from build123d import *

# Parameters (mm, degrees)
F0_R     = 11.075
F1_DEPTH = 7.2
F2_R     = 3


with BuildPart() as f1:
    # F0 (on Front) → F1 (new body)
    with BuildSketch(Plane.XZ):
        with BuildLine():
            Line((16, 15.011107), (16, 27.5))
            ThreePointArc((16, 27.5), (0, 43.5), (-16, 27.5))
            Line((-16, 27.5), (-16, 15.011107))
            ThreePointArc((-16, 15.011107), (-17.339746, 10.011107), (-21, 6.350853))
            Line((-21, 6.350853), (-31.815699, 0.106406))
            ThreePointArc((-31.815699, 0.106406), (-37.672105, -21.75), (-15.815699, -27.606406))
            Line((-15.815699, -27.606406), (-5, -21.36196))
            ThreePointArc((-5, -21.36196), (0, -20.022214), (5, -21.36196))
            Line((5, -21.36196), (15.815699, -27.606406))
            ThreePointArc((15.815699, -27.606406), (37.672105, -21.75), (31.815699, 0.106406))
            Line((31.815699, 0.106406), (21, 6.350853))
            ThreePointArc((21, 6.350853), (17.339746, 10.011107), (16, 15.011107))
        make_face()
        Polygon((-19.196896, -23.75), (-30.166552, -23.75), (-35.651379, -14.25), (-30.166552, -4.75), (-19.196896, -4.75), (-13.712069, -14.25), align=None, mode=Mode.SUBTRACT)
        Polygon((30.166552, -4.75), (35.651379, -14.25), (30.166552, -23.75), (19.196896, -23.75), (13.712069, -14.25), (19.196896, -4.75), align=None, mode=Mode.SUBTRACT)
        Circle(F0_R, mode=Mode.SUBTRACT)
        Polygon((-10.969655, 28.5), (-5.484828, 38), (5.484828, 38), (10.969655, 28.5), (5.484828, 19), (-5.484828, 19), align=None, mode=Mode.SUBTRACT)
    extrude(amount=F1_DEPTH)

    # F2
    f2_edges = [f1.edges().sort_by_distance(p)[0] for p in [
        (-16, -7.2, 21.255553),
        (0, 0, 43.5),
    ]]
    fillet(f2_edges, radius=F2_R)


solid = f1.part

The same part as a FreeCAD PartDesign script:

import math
import FreeCAD as App
import Part
import Sketcher
from FreeCAD import Vector
Q = App.Units.Quantity


def edges_at(feature, points):
    """Names of the edges that pass closest to the given points."""
    edges = feature.Shape.Edges
    near = lambda p: min(range(len(edges)), key=lambda i: edges[i].distToShape(Part.Vertex(*p))[0])
    return sorted({f"Edge{near(p) + 1}" for p in points})

doc = App.newDocument("Part")
body = doc.addObject("PartDesign::Body", "Body")

# Sketch on XZ plane
sketch1 = body.newObject("Sketcher::SketchObject", "Sketch")
sketch1.AttachmentSupport = (doc.getObject("XZ_Plane"), [""])
sketch1.MapMode = "FlatFace"
sketch1.addGeometry([
    Part.LineSegment(Vector(16, 15, 0), Vector(16, 28, 0)),  # 0
    Part.ArcOfCircle(Part.Circle(Vector(0, 28, 0), Vector(0, 0, 1), 16), math.radians(0), math.radians(180)),  # 1
    Part.LineSegment(Vector(-16, 28, 0), Vector(-16, 15, 0)),  # 2
    Part.ArcOfCircle(Part.Circle(Vector(-26, 15, 0), Vector(0, 0, 1), 10), math.radians(-60), math.radians(0)),  # 3
    Part.LineSegment(Vector(-21, 6, 0), Vector(-32, 0, 0)),  # 4
    Part.ArcOfCircle(Part.Circle(Vector(-24, -14, 0), Vector(0, 0, 1), 16), math.radians(120), math.radians(300)),  # 5
    Part.LineSegment(Vector(-16, -28, 0), Vector(-5, -21, 0)),  # 6
    Part.ArcOfCircle(Part.Circle(Vector(0, -30, 0), Vector(0, 0, 1), 10), math.radians(60), math.radians(120)),  # 7
    Part.LineSegment(Vector(5, -21, 0), Vector(16, -28, 0)),  # 8
    Part.ArcOfCircle(Part.Circle(Vector(24, -14, 0), Vector(0, 0, 1), 16), math.radians(-120), math.radians(60)),  # 9
    Part.LineSegment(Vector(32, 0, 0), Vector(21, 6, 0)),  # 10
    Part.ArcOfCircle(Part.Circle(Vector(26, 15, 0), Vector(0, 0, 1), 10), math.radians(-180), math.radians(-120)),  # 11
    Part.LineSegment(Vector(-14, -14, 0), Vector(-19, -24, 0)),  # 12
    Part.LineSegment(Vector(-19, -24, 0), Vector(-30, -24, 0)),  # 13
    Part.LineSegment(Vector(-30, -24, 0), Vector(-36, -14, 0)),  # 14
    Part.LineSegment(Vector(-36, -14, 0), Vector(-30, -5, 0)),  # 15
    Part.LineSegment(Vector(-30, -5, 0), Vector(-19, -5, 0)),  # 16
    Part.LineSegment(Vector(-19, -5, 0), Vector(-14, -14, 0)),  # 17
    Part.LineSegment(Vector(19, -5, 0), Vector(30, -5, 0)),  # 18
    Part.LineSegment(Vector(30, -5, 0), Vector(36, -14, 0)),  # 19
    Part.LineSegment(Vector(36, -14, 0), Vector(30, -24, 0)),  # 20
    Part.LineSegment(Vector(30, -24, 0), Vector(19, -24, 0)),  # 21
    Part.LineSegment(Vector(19, -24, 0), Vector(14, -14, 0)),  # 22
    Part.LineSegment(Vector(14, -14, 0), Vector(19, -5, 0)),  # 23
    Part.Circle(Vector(0, 0, 0), Vector(0, 0, 1), 11),  # 24
    Part.LineSegment(Vector(-5, 19, 0), Vector(-11, 28, 0)),  # 25
    Part.LineSegment(Vector(-11, 28, 0), Vector(-5, 38, 0)),  # 26
    Part.LineSegment(Vector(-5, 38, 0), Vector(5, 38, 0)),  # 27
    Part.LineSegment(Vector(5, 38, 0), Vector(11, 28, 0)),  # 28
    Part.LineSegment(Vector(11, 28, 0), Vector(5, 19, 0)),  # 29
    Part.LineSegment(Vector(5, 19, 0), Vector(-5, 19, 0)),  # 30
], False)
sketch1.addConstraint([
    Sketcher.Constraint("Tangent", 0, 2, 1, 1),
    Sketcher.Constraint("Tangent", 1, 2, 2, 1),
    Sketcher.Constraint("Tangent", 2, 2, 3, 2),
    Sketcher.Constraint("Tangent", 3, 1, 4, 1),
    Sketcher.Constraint("Tangent", 4, 2, 5, 1),
    Sketcher.Constraint("Tangent", 5, 2, 6, 1),
    Sketcher.Constraint("Tangent", 6, 2, 7, 2),
    Sketcher.Constraint("Tangent", 7, 1, 8, 1),
    Sketcher.Constraint("Tangent", 8, 2, 9, 1),
    Sketcher.Constraint("Tangent", 9, 2, 10, 1),
    Sketcher.Constraint("Tangent", 10, 2, 11, 2),
    Sketcher.Constraint("Tangent", 11, 1, 0, 1),
    Sketcher.Constraint("Coincident", 12, 2, 13, 1),
    Sketcher.Constraint("Coincident", 13, 2, 14, 1),
    Sketcher.Constraint("Coincident", 14, 2, 15, 1),
    Sketcher.Constraint("Coincident", 15, 2, 16, 1),
    Sketcher.Constraint("Coincident", 16, 2, 17, 1),
    Sketcher.Constraint("Coincident", 17, 2, 12, 1),
    Sketcher.Constraint("Coincident", 18, 2, 19, 1),
    Sketcher.Constraint("Coincident", 19, 2, 20, 1),
    Sketcher.Constraint("Coincident", 20, 2, 21, 1),
    Sketcher.Constraint("Coincident", 21, 2, 22, 1),
    Sketcher.Constraint("Coincident", 22, 2, 23, 1),
    Sketcher.Constraint("Coincident", 23, 2, 18, 1),
    Sketcher.Constraint("Coincident", 25, 2, 26, 1),
    Sketcher.Constraint("Coincident", 26, 2, 27, 1),
    Sketcher.Constraint("Coincident", 27, 2, 28, 1),
    Sketcher.Constraint("Coincident", 28, 2, 29, 1),
    Sketcher.Constraint("Coincident", 29, 2, 30, 1),
    Sketcher.Constraint("Coincident", 30, 2, 25, 1),
    Sketcher.Constraint("Vertical", 0),
    Sketcher.Constraint("Vertical", 2),
    Sketcher.Constraint("Horizontal", 13),
    Sketcher.Constraint("Horizontal", 16),
    Sketcher.Constraint("Horizontal", 18),
    Sketcher.Constraint("Horizontal", 21),
    Sketcher.Constraint("Horizontal", 27),
    Sketcher.Constraint("Horizontal", 30),
    Sketcher.Constraint("Coincident", 24, 3, -1, 1),
    Sketcher.Constraint("Equal", 1, 5),
    Sketcher.Constraint("Equal", 3, 7),
    Sketcher.Constraint("Equal", 5, 9),
    Sketcher.Constraint("Equal", 7, 11),
    Sketcher.Constraint("Symmetric", 5, 3, 9, 3, -2),
    Sketcher.Constraint("Symmetric", 3, 3, 11, 3, -2),
    Sketcher.Constraint("Symmetric", 15, 2, 18, 2, -2),
    Sketcher.Constraint("Symmetric", 14, 2, 19, 2, -2),
    Sketcher.Constraint("Symmetric", 13, 2, 20, 2, -2),
    Sketcher.Constraint("Symmetric", 17, 2, 22, 2, -2),
    Sketcher.Constraint("Symmetric", 25, 2, 28, 2, -2),
    Sketcher.Constraint("PointOnObject", 7, 3, -2),
    Sketcher.Constraint("Parallel", 4, 6),
    Sketcher.Constraint("Perpendicular", 10, 12),
    Sketcher.Constraint("Perpendicular", 6, 14),
    Sketcher.Constraint("Parallel", 12, 15),
    Sketcher.Constraint("Parallel", 14, 17),
    Sketcher.Constraint("Parallel", 19, 22),
    Sketcher.Constraint("Parallel", 20, 23),
    Sketcher.Constraint("Parallel", 22, 25),
    Sketcher.Constraint("Parallel", 23, 26),
    Sketcher.Constraint("Parallel", 25, 28),
    Sketcher.Constraint("Parallel", 26, 29),
    Sketcher.Constraint("Horizontal", 14, 2, 17, 2),
    Sketcher.Constraint("Vertical", 13, 2, 15, 2),
    Sketcher.Constraint("Vertical", 27, 2, 29, 2),
    Sketcher.Constraint("Equal", 21, 27),
    Sketcher.Constraint("Equal", 4, 6),
    Sketcher.Constraint("Equal", 23, 25),
    Sketcher.Constraint("Radius", 1, Q("16 mm")),
    Sketcher.Constraint("Radius", 3, Q("10 mm")),
    Sketcher.Constraint("Diameter", 24, Q("22.15 mm")),
    Sketcher.Constraint("DistanceY", -1, 1, 26, 2, Q("38 mm")),
    Sketcher.Constraint("DistanceY", -1, 1, 29, 2, Q("19 mm")),
    Sketcher.Constraint("DistanceY", 12, 2, 5, 3, Q("10 mm")),
    Sketcher.Constraint("DistanceY", 1, 2, 25, 2, Q("1 mm")),
    Sketcher.Constraint("DistanceY", 5, 3, -1, 1, Q("13.75 mm")),
    Sketcher.Constraint("DistanceX", 5, 3, -1, 1, Q("23.815699 mm")),
    Sketcher.Constraint("DistanceX", 13, 2, 13, 1, Q("10.969656 mm")),
    Sketcher.Constraint("DistanceX", 13, 2, -1, 1, Q("30.166552 mm")),
])
pad1 = body.newObject("PartDesign::Pad", "Pad")
pad1.Profile = sketch1
pad1.Length = 7.2
doc.recompute()

fillet = body.newObject("PartDesign::Fillet", "Fillet")
fillet.Base = (pad1, edges_at(pad1, [(-16, -7.2, 21.256), (0, 0, 43.5)]))
fillet.Radius = 3

doc.recompute()
